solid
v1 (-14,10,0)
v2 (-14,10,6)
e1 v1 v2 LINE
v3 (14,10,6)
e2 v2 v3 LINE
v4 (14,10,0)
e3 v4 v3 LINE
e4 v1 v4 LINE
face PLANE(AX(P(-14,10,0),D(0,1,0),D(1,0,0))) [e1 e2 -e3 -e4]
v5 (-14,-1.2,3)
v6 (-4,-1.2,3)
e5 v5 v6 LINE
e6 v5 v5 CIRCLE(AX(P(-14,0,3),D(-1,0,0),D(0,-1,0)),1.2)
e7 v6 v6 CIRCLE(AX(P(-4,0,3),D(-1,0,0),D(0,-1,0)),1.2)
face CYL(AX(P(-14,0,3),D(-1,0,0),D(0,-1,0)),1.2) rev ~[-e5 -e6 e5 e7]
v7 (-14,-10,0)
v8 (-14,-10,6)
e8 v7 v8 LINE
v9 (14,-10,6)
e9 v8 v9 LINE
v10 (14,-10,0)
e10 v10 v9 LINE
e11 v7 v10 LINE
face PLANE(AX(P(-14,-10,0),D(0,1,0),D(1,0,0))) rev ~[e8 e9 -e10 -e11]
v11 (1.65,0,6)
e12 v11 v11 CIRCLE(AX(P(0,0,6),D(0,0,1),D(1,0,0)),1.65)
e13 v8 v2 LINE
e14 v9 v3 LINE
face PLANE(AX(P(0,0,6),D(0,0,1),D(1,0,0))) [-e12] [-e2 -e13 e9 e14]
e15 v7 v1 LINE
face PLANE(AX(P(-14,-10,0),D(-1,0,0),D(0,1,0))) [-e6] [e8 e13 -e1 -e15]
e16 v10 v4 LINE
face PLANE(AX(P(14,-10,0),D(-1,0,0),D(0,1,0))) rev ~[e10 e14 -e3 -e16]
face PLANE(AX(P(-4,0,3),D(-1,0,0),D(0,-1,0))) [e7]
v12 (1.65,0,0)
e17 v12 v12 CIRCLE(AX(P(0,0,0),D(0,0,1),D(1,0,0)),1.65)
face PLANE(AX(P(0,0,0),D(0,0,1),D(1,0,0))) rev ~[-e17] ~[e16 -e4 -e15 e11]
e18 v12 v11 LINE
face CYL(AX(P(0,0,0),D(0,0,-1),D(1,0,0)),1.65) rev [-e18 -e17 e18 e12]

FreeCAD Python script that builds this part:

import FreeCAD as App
import Part
import Sketcher
from FreeCAD import Vector

doc = App.newDocument("Part")
params = doc.addObject("Spreadsheet::Sheet", "Params")
for row, (alias, value) in enumerate([
    ("sketch1_diameter", "3.3 mm"),
    ("sketch1_width", "28 mm"),
    ("sketch1_height", "20 mm"),
    ("pad1_length", "6 mm"),
    ("sketch2_diameter", "2.4 mm"),
    ("pocket1_length", "10 mm"),
], start=1):
    params.set(f"A{row}", alias)
    params.set(f"B{row}", "=" + value)
    params.setAlias(f"B{row}", alias)

body = doc.addObject("PartDesign::Body", "Body")

sketch1 = body.newObject("Sketcher::SketchObject", "Sketch")
sketch1.AttachmentSupport = (doc.getObject("XY_Plane"), [""])
sketch1.MapMode = "FlatFace"
sketch1.addGeometry([
    Part.LineSegment(Vector(-14, 10, 0), Vector(-14, -10, 0)),
    Part.LineSegment(Vector(-14, -10, 0), Vector(14, -10, 0)),
    Part.LineSegment(Vector(14, -10, 0), Vector(14, 10, 0)),
    Part.LineSegment(Vector(14, 10, 0), Vector(-14, 10, 0)),
    Part.Circle(Vector(0, 0, 0), Vector(0, 0, 1), 1.65),
], False)
sketch1.addConstraint([
    Sketcher.Constraint("Coincident", 0, 2, 1, 1),
    Sketcher.Constraint("Coincident", 1, 2, 2, 1),
    Sketcher.Constraint("Coincident", 2, 2, 3, 1),
    Sketcher.Constraint("Coincident", 3, 2, 0, 1),
    Sketcher.Constraint("Vertical", 0),
    Sketcher.Constraint("Horizontal", 1),
    Sketcher.Constraint("Vertical", 2),
    Sketcher.Constraint("Horizontal", 3),
    Sketcher.Constraint("Coincident", 4, 3, -1, 1),
    Sketcher.Constraint("Symmetric", 0, 2, 2, 2, -1, 1),
    Sketcher.Constraint("Diameter", 4, 3.3),
    Sketcher.Constraint("DistanceX", 1, 1, 1, 2, 28.0),
    Sketcher.Constraint("DistanceY", 0, 2, 0, 1, 20.0),
])
sketch1.setExpression("Constraints[10]", "Params.sketch1_diameter")
sketch1.setExpression("Constraints[11]", "Params.sketch1_width")
sketch1.setExpression("Constraints[12]", "Params.sketch1_height")
pad1 = body.newObject("PartDesign::Pad", "Pad")
pad1.Profile = sketch1
pad1.setExpression("Length", "Params.pad1_length")

sketch2 = body.newObject("Sketcher::SketchObject", "Sketch001")
sketch2.AttachmentSupport = (doc.getObject("YZ_Plane"), [""])
sketch2.MapMode = "FlatFace"
sketch2.AttachmentOffset = App.Placement(Vector(0, 0, -14), App.Rotation())
sketch2.addGeometry(Part.Circle(Vector(0, 3, 0), Vector(0, 0, 1), 1.2), False)
sketch2.addConstraint([
    Sketcher.Constraint("PointOnObject", 0, 3, -2),
    Sketcher.Constraint("Diameter", 0, 2.4),
    Sketcher.Constraint("DistanceY", -1, 1, 0, 3, 3.0),
])
sketch2.setExpression("Constraints[1]", "Params.sketch2_diameter")
pocket1 = body.newObject("PartDesign::Pocket", "Pocket")
pocket1.Profile = sketch2
pocket1.setExpression("Length", "Params.pocket1_length")
pocket1.Reversed = True

doc.recompute()
